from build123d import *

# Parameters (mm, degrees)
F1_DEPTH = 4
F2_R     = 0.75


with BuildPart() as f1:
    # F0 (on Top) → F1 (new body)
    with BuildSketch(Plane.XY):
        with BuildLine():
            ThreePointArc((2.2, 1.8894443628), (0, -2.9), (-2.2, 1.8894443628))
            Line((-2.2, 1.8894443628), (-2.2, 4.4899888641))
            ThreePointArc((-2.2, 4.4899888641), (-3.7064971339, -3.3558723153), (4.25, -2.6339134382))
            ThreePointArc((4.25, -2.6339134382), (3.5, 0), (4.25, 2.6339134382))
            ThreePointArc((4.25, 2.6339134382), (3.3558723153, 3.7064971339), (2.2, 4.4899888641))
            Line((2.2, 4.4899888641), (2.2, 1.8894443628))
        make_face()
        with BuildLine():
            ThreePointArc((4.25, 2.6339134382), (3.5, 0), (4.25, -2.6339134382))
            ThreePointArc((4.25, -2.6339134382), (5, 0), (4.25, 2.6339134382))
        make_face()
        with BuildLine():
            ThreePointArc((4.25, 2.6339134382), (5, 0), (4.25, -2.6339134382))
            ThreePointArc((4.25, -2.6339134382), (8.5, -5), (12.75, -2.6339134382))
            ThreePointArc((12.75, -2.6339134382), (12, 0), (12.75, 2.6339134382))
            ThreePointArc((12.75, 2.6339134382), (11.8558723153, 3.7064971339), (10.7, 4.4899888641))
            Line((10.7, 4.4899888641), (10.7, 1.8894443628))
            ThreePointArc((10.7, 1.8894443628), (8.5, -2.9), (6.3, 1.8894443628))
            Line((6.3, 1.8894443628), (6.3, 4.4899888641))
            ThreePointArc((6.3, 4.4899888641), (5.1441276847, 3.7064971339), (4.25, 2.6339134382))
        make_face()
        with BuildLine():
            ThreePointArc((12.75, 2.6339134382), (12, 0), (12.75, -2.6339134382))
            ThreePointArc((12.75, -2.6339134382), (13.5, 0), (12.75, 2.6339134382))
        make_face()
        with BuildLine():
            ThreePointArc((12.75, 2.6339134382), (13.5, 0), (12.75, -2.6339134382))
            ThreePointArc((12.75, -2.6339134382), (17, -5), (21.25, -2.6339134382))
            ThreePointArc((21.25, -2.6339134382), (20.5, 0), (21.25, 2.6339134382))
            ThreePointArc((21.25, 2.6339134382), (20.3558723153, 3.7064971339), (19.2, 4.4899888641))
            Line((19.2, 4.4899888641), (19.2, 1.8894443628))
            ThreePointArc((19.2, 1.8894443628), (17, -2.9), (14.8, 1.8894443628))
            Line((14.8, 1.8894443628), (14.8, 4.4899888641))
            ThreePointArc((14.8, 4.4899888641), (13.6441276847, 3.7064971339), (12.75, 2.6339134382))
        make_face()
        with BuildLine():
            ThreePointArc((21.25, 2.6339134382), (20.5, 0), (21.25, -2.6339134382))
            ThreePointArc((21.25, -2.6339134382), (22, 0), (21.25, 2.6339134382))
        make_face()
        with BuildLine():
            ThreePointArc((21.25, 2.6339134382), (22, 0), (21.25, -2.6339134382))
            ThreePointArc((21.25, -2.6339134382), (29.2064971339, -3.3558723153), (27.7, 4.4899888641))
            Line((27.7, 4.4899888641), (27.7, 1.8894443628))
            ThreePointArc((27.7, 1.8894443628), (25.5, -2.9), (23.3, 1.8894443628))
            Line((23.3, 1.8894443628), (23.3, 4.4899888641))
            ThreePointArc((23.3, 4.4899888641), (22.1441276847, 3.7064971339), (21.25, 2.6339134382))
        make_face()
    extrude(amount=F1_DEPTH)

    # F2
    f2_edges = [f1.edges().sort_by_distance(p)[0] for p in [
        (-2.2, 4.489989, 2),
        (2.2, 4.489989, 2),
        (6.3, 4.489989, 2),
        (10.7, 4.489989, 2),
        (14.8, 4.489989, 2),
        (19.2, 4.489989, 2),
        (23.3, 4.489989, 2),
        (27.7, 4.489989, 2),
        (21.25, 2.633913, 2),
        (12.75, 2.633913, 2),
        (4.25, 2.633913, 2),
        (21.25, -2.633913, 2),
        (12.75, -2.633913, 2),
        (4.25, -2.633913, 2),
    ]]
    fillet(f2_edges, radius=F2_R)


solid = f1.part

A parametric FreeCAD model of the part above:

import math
import FreeCAD as App
import Part
import Sketcher

V = App.Vector


def edges_at(feature, points):
    """Names of the edges that pass closest to the given points."""
    edges = feature.Shape.Edges
    near = lambda p: min(range(len(edges)), key=lambda i: edges[i].distToShape(Part.Vertex(*p))[0])
    return sorted({f"Edge{near(p) + 1}" for p in points})

doc = App.newDocument("Part")
body = doc.addObject("PartDesign::Body", "Body")

# Sketch on XY plane
sketch1 = body.newObject("Sketcher::SketchObject", "Sketch")
sketch1.AttachmentSupport = (doc.getObject("XY_Plane"), [""])
sketch1.MapMode = "FlatFace"
sketch1.addGeometry([
    Part.ArcOfCircle(Part.Circle(V(0, 0, 0), V(0, 0, 1), 2.9), math.radians(139.342751), math.radians(400.657249)),  # 0
    Part.LineSegment(V(-2.2, 1.889444, 0), V(-2.2, 4.489989, 0)),  # 1
    Part.ArcOfCircle(Part.Circle(V(0, 0, 0), V(0, 0, 1), 5), math.radians(116.103881), math.radians(328.211669)),  # 2
    Part.ArcOfCircle(Part.Circle(V(8.5, 0, 0), V(0, 0, 1), 5), math.radians(-148.211669), math.radians(-31.788331)),  # 3
    Part.ArcOfCircle(Part.Circle(V(17, 0, 0), V(0, 0, 1), 5), math.radians(-148.211669), math.radians(-31.788331)),  # 4
    Part.ArcOfCircle(Part.Circle(V(25.5, 0, 0), V(0, 0, 1), 5), math.radians(-148.211669), math.radians(63.896119)),  # 5
    Part.LineSegment(V(27.7, 4.489989, 0), V(27.7, 1.889444, 0)),  # 6
    Part.ArcOfCircle(Part.Circle(V(25.5, 0, 0), V(0, 0, 1), 2.9), math.radians(139.342751), math.radians(400.657249)),  # 7
    Part.LineSegment(V(23.3, 1.889444, 0), V(23.3, 4.489989, 0)),  # 8
    Part.ArcOfCircle(Part.Circle(V(25.5, 0, 0), V(0, 0, 1), 5), math.radians(116.103881), math.radians(148.211669)),  # 9
    Part.ArcOfCircle(Part.Circle(V(17, 0, 0), V(0, 0, 1), 5), math.radians(31.788331), math.radians(63.896119)),  # 10
    Part.LineSegment(V(19.2, 4.489989, 0), V(19.2, 1.889444, 0)),  # 11
    Part.ArcOfCircle(Part.Circle(V(17, 0, 0), V(0, 0, 1), 2.9), math.radians(139.342751), math.radians(400.657249)),  # 12
    Part.LineSegment(V(14.8, 1.889444, 0), V(14.8, 4.489989, 0)),  # 13
    Part.ArcOfCircle(Part.Circle(V(17, 0, 0), V(0, 0, 1), 5), math.radians(116.103881), math.radians(148.211669)),  # 14
    Part.ArcOfCircle(Part.Circle(V(8.5, 0, 0), V(0, 0, 1), 5), math.radians(31.788331), math.radians(63.896119)),  # 15
    Part.LineSegment(V(10.7, 4.489989, 0), V(10.7, 1.889444, 0)),  # 16
    Part.ArcOfCircle(Part.Circle(V(8.5, 0, 0), V(0, 0, 1), 2.9), math.radians(139.342751), math.radians(400.657249)),  # 17
    Part.LineSegment(V(6.3, 1.889444, 0), V(6.3, 4.489989, 0)),  # 18
    Part.ArcOfCircle(Part.Circle(V(8.5, 0, 0), V(0, 0, 1), 5), math.radians(116.103881), math.radians(148.211669)),  # 19
    Part.ArcOfCircle(Part.Circle(V(0, 0, 0), V(0, 0, 1), 5), math.radians(31.788331), math.radians(63.896119)),  # 20
    Part.LineSegment(V(2.2, 4.489989, 0), V(2.2, 1.889444, 0)),  # 21
], False)
sketch1.addConstraint([
    Sketcher.Constraint("Coincident", 0, 1, 1, 1),
    Sketcher.Constraint("Coincident", 1, 2, 2, 1),
    Sketcher.Constraint("Coincident", 2, 2, 3, 1),
    Sketcher.Constraint("Coincident", 3, 2, 4, 1),
    Sketcher.Constraint("Coincident", 4, 2, 5, 1),
    Sketcher.Constraint("Coincident", 5, 2, 6, 1),
    Sketcher.Constraint("Coincident", 6, 2, 7, 2),
    Sketcher.Constraint("Coincident", 7, 1, 8, 1),
    Sketcher.Constraint("Coincident", 8, 2, 9, 1),
    Sketcher.Constraint("Coincident", 9, 2, 10, 1),
    Sketcher.Constraint("Coincident", 10, 2, 11, 1),
    Sketcher.Constraint("Coincident", 11, 2, 12, 2),
    Sketcher.Constraint("Coincident", 12, 1, 13, 1),
    Sketcher.Constraint("Coincident", 13, 2, 14, 1),
    Sketcher.Constraint("Coincident", 14, 2, 15, 1),
    Sketcher.Constraint("Coincident", 15, 2, 16, 1),
    Sketcher.Constraint("Coincident", 16, 2, 17, 2),
    Sketcher.Constraint("Coincident", 17, 1, 18, 1),
    Sketcher.Constraint("Coincident", 18, 2, 19, 1),
    Sketcher.Constraint("Coincident", 19, 2, 20, 1),
    Sketcher.Constraint("Coincident", 20, 2, 21, 1),
    Sketcher.Constraint("Coincident", 21, 2, 0, 2),
    Sketcher.Constraint("Vertical", 1),
    Sketcher.Constraint("Vertical", 6),
    Sketcher.Constraint("Vertical", 8),
    Sketcher.Constraint("Vertical", 11),
    Sketcher.Constraint("Vertical", 13),
    Sketcher.Constraint("Vertical", 16),
    Sketcher.Constraint("Vertical", 18),
    Sketcher.Constraint("Vertical", 21),
    Sketcher.Constraint("Coincident", 0, 3, -1, 1),
    Sketcher.Constraint("Coincident", 2, 3, -1, 1),
    Sketcher.Constraint("Coincident", 20, 3, -1, 1),
    Sketcher.Constraint("Coincident", 7, 3, 5, 3),
    Sketcher.Constraint("Coincident", 9, 3, 5, 3),
    Sketcher.Constraint("Coincident", 10, 3, 4, 3),
    Sketcher.Constraint("Coincident", 12, 3, 4, 3),
    Sketcher.Constraint("Coincident", 14, 3, 4, 3),
    Sketcher.Constraint("Coincident", 15, 3, 3, 3),
    Sketcher.Constraint("Coincident", 17, 3, 3, 3),
    Sketcher.Constraint("Coincident", 19, 3, 3, 3),
    Sketcher.Constraint("Equal", 2, 3),
    Sketcher.Constraint("Equal", 3, 4),
    Sketcher.Constraint("Equal", 4, 5),
    Sketcher.Constraint("Equal", 0, 7),
    Sketcher.Constraint("Equal", 5, 9),
    Sketcher.Constraint("Equal", 9, 10),
    Sketcher.Constraint("Equal", 7, 12),
    Sketcher.Constraint("Equal", 10, 14),
    Sketcher.Constraint("Equal", 14, 15),
    Sketcher.Constraint("Equal", 12, 17),
    Sketcher.Constraint("Equal", 15, 19),
    Sketcher.Constraint("Equal", 19, 20),
    Sketcher.Constraint("Symmetric", 4, 2, 9, 2, -1),
    Sketcher.Constraint("PointOnObject", 3, 3, -1),
    Sketcher.Constraint("Horizontal", 2, 2, 3, 2),
    Sketcher.Constraint("Horizontal", 3, 2, 4, 2),
    Sketcher.Constraint("Horizontal", 1, 2, 5, 2),
    Sketcher.Constraint("Horizontal", 6, 2, 7, 1),
    Sketcher.Constraint("Horizontal", 8, 2, 10, 2),
    Sketcher.Constraint("Horizontal", 11, 2, 12, 1),
    Sketcher.Constraint("Horizontal", 13, 2, 15, 2),
    Sketcher.Constraint("Horizontal", 16, 2, 17, 1),
    Sketcher.Constraint("Horizontal", 18, 2, 20, 2),
    Sketcher.Constraint("Radius", 2, 5.0),
    Sketcher.Constraint("Radius", 0, 2.9),
    Sketcher.Constraint("DistanceX", -1, 1, 4, 3, 17.0),
    Sketcher.Constraint("DistanceX", 0, 1, -1, 1, 2.2),
])
pad1 = body.newObject("PartDesign::Pad", "Pad")
pad1.Profile = sketch1
pad1.Length = 4
doc.recompute()

fillet = body.newObject("PartDesign::Fillet", "Fillet")
fillet.Base = (pad1, edges_at(pad1, [
    (-2.2, 4.49, 2),
    (2.2, 4.49, 2),
    (6.3, 4.49, 2),
    (10.7, 4.49, 2),
    (14.8, 4.49, 2),
    (19.2, 4.49, 2),
    (23.3, 4.49, 2),
    (27.7, 4.49, 2),
    (21.25, 2.634, 2),
    (12.75, 2.634, 2),
    (4.25, 2.634, 2),
    (21.25, -2.634, 2),
    (12.75, -2.634, 2),
    (4.25, -2.634, 2),
]))
fillet.Radius = 0.75

doc.recompute()
